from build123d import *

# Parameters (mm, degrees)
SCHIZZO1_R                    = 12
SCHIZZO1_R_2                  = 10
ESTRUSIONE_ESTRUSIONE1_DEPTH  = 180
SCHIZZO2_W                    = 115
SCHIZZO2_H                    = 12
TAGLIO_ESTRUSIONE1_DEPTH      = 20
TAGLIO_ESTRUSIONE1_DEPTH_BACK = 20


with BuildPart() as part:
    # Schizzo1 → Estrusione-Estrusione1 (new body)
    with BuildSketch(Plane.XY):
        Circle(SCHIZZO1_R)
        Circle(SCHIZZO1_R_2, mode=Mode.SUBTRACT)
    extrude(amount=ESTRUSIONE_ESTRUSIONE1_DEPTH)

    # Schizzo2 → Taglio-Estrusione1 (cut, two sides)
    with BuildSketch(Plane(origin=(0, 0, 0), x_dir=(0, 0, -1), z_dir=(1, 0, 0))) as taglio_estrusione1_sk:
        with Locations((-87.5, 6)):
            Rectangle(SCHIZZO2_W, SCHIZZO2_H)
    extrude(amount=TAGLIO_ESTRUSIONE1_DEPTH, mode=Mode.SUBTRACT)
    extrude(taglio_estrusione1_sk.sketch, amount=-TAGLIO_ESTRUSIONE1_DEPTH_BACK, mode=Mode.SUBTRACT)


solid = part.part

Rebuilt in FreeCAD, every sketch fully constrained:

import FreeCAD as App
import Part
import Sketcher
from FreeCAD import Vector
Q = App.Units.Quantity


def add_polygon(sketch, points):
    """Adds a closed chain of lines whose ends are joined by coincident constraints."""
    first, n = sketch.GeometryCount, len(points)
    for a, b in zip(points, points[1:] + points[:1]):
        sketch.addGeometry(Part.LineSegment(App.Vector(*a, 0), App.Vector(*b, 0)), False)
    for i in range(n):
        sketch.addConstraint(Sketcher.Constraint("Coincident", first + i, 2, first + (i + 1) % n, 1))

doc = App.newDocument("Part")
body = doc.addObject("PartDesign::Body", "Body")

sketch1 = doc.addObject("Sketcher::SketchObject", "Sketch")
body.addObject(sketch1)
sketch1.AttachmentSupport = (doc.XY_Plane, [""])
sketch1.MapMode = "FlatFace"
sketch1.addGeometry([
    Part.Circle(Vector(0, 0, 0), Vector(0, 0, 1), 12),
    Part.Circle(Vector(0, 0, 0), Vector(0, 0, 1), 10),
], False)
sketch1.addConstraint([
    Sketcher.Constraint("Coincident", 0, 3, -1, 1),
    Sketcher.Constraint("Coincident", 1, 3, -1, 1),
    Sketcher.Constraint("Diameter", 0, Q("24 mm")),
    Sketcher.Constraint("Diameter", 1, Q("20 mm")),
])
pad1 = doc.addObject("PartDesign::Pad", "Pad")
body.addObject(pad1)
pad1.Profile = sketch1
pad1.Length = 180

sketch2 = doc.addObject("Sketcher::SketchObject", "Sketch001")
body.addObject(sketch2)
sketch2.AttachmentSupport = (doc.YZ_Plane, [""])
sketch2.MapMode = "FlatFace"
add_polygon(sketch2, [(12, 145), (0, 145), (0, 30), (12, 30)])
sketch2.addConstraint([
    Sketcher.Constraint("Horizontal", 0),
    Sketcher.Constraint("Vertical", 1),
    Sketcher.Constraint("Horizontal", 2),
    Sketcher.Constraint("Vertical", 3),
    Sketcher.Constraint("PointOnObject", 0, 2, -2),
    Sketcher.Constraint("DistanceX", 0, 2, 0, 1, Q("12 mm")),
    Sketcher.Constraint("DistanceY", 1, 2, 1, 1, Q("115 mm")),
    Sketcher.Constraint("DistanceY", -1, 1, 0, 2, Q("145 mm")),
])
pocket1 = doc.addObject("PartDesign::Pocket", "Pocket")
body.addObject(pocket1)
pocket1.Profile = sketch2
pocket1.Type = "ThroughAll"
pocket1.Midplane = True

doc.recompute()
